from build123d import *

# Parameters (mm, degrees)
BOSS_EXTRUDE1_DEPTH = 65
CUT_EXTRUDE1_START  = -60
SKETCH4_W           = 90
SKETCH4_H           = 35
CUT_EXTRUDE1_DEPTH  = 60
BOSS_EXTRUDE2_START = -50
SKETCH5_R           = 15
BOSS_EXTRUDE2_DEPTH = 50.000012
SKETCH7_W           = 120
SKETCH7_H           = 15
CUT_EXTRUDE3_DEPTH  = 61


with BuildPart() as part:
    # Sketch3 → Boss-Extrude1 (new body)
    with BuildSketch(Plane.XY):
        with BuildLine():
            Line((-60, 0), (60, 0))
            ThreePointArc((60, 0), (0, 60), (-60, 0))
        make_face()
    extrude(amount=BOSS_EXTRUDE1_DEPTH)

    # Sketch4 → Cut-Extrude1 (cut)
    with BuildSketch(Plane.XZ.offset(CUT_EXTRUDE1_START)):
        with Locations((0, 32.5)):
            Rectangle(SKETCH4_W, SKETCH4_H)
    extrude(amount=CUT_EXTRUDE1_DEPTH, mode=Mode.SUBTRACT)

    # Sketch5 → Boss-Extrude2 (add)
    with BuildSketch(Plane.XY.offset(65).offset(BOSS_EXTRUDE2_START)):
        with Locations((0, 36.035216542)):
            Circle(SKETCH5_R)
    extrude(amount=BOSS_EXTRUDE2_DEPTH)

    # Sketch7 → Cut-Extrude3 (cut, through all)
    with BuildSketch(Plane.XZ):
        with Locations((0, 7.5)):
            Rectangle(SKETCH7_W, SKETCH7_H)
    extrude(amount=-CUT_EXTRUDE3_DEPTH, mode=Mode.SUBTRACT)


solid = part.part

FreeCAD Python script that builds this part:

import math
import FreeCAD as App
import Part
import Sketcher

V = App.Vector
Q = App.Units.Quantity

doc = App.newDocument("Part")
params = doc.addObject("Spreadsheet::Sheet", "Params")
for row, (alias, value) in enumerate([
    ("sketch1_radius", "60 mm"),
    ("pad1_length", "65 mm"),
    ("sketch2_width", "90 mm"),
    ("sketch2_height", "35 mm"),
    ("pocket1_length", "60 mm"),
    ("sketch3_diameter", "30 mm"),
    ("pad2_length", "50.000012 mm"),
    ("sketch4_width", "120 mm"),
    ("sketch4_height", "15 mm"),
], start=1):
    params.set(f"A{row}", alias)
    params.set(f"B{row}", "=" + value)
    params.setAlias(f"B{row}", alias)

body = doc.addObject("PartDesign::Body", "Body")

# Sketch on XY plane
sketch1 = body.newObject("Sketcher::SketchObject", "Sketch")
sketch1.AttachmentSupport = (doc.getObject("XY_Plane"), [""])
sketch1.MapMode = "FlatFace"
sketch1.addGeometry([
    Part.LineSegment(V(-60, 0, 0), V(60, 0, 0)),
    Part.ArcOfCircle(Part.Circle(V(0, 0, 0), V(0, 0, 1), 60), math.radians(0), math.radians(180)),
], False)
sketch1.addConstraint([
    Sketcher.Constraint("Coincident", 0, 1, 1, 2),
    Sketcher.Constraint("Coincident", 1, 1, 0, 2),
    Sketcher.Constraint("Horizontal", 0),
    Sketcher.Constraint("Coincident", 1, 3, -1, 1),
    Sketcher.Constraint("PointOnObject", 0, 1, -1),
    Sketcher.Constraint("Radius", 1, Q("60 mm")),
])
sketch1.setExpression("Constraints[5]", "Params.sketch1_radius")
pad1 = body.newObject("PartDesign::Pad", "Pad")
pad1.Profile = sketch1
pad1.setExpression("Length", "Params.pad1_length")

# Sketch on XZ plane
sketch2 = body.newObject("Sketcher::SketchObject", "Sketch001")
sketch2.AttachmentSupport = (doc.getObject("XZ_Plane"), [""])
sketch2.MapMode = "FlatFace"
sketch2.AttachmentOffset = App.Placement(V(0, 0, -60), App.Rotation())
sketch2.addGeometry([
    Part.LineSegment(V(-45, 50, 0), V(-45, 15, 0)),
    Part.LineSegment(V(-45, 15, 0), V(45, 15, 0)),
    Part.LineSegment(V(45, 15, 0), V(45, 50, 0)),
    Part.LineSegment(V(45, 50, 0), V(-45, 50, 0)),
], False)
sketch2.addConstraint([
    Sketcher.Constraint("Coincident", 0, 2, 1, 1),
    Sketcher.Constraint("Coincident", 1, 2, 2, 1),
    Sketcher.Constraint("Coincident", 2, 2, 3, 1),
    Sketcher.Constraint("Coincident", 3, 2, 0, 1),
    Sketcher.Constraint("Vertical", 0),
    Sketcher.Constraint("Horizontal", 1),
    Sketcher.Constraint("Vertical", 2),
    Sketcher.Constraint("Horizontal", 3),
    Sketcher.Constraint("DistanceX", 1, 1, 1, 2, Q("90 mm")),
    Sketcher.Constraint("DistanceY", 0, 2, 0, 1, Q("35 mm")),
    Sketcher.Constraint("DistanceX", 0, 2, -1, 1, Q("45 mm")),
    Sketcher.Constraint("DistanceY", -1, 1, 0, 2, Q("15 mm")),
])
sketch2.setExpression("Constraints[8]", "Params.sketch2_width")
sketch2.setExpression("Constraints[9]", "Params.sketch2_height")
pocket1 = body.newObject("PartDesign::Pocket", "Pocket")
pocket1.Profile = sketch2
pocket1.setExpression("Length", "Params.pocket1_length")
pocket1.Reversed = True

# Sketch on XY plane
sketch3 = body.newObject("Sketcher::SketchObject", "Sketch002")
sketch3.AttachmentSupport = (doc.getObject("XY_Plane"), [""])
sketch3.MapMode = "FlatFace"
sketch3.AttachmentOffset = App.Placement(V(0, 0, 15), App.Rotation())
sketch3.addGeometry(Part.Circle(V(0, 36, 0), V(0, 0, 1), 15), False)
sketch3.addConstraint([
    Sketcher.Constraint("PointOnObject", 0, 3, -2),
    Sketcher.Constraint("Diameter", 0, Q("30 mm")),
    Sketcher.Constraint("DistanceY", -1, 1, 0, 3, Q("36.035217 mm")),
])
sketch3.setExpression("Constraints[1]", "Params.sketch3_diameter")
pad2 = body.newObject("PartDesign::Pad", "Pad001")
pad2.Profile = sketch3
pad2.setExpression("Length", "Params.pad2_length")

# Sketch on XZ plane
sketch4 = body.newObject("Sketcher::SketchObject", "Sketch003")
sketch4.AttachmentSupport = (doc.getObject("XZ_Plane"), [""])
sketch4.MapMode = "FlatFace"
sketch4.addGeometry([
    Part.LineSegment(V(-60, 15, 0), V(-60, 0, 0)),
    Part.LineSegment(V(-60, 0, 0), V(60, 0, 0)),
    Part.LineSegment(V(60, 0, 0), V(60, 15, 0)),
    Part.LineSegment(V(60, 15, 0), V(-60, 15, 0)),
], False)
sketch4.addConstraint([
    Sketcher.Constraint("Coincident", 0, 2, 1, 1),
    Sketcher.Constraint("Coincident", 1, 2, 2, 1),
    Sketcher.Constraint("Coincident", 2, 2, 3, 1),
    Sketcher.Constraint("Coincident", 3, 2, 0, 1),
    Sketcher.Constraint("Vertical", 0),
    Sketcher.Constraint("Horizontal", 1),
    Sketcher.Constraint("Vertical", 2),
    Sketcher.Constraint("Horizontal", 3),
    Sketcher.Constraint("Symmetric", 0, 2, 1, 2, -1, 1),
    Sketcher.Constraint("DistanceX", 1, 1, 1, 2, Q("120 mm")),
    Sketcher.Constraint("DistanceY", 0, 2, 0, 1, Q("15 mm")),
])
sketch4.setExpression("Constraints[9]", "Params.sketch4_width")
sketch4.setExpression("Constraints[10]", "Params.sketch4_height")
pocket2 = body.newObject("PartDesign::Pocket", "Pocket001")
pocket2.Profile = sketch4
pocket2.Type = "ThroughAll"

doc.recompute()
